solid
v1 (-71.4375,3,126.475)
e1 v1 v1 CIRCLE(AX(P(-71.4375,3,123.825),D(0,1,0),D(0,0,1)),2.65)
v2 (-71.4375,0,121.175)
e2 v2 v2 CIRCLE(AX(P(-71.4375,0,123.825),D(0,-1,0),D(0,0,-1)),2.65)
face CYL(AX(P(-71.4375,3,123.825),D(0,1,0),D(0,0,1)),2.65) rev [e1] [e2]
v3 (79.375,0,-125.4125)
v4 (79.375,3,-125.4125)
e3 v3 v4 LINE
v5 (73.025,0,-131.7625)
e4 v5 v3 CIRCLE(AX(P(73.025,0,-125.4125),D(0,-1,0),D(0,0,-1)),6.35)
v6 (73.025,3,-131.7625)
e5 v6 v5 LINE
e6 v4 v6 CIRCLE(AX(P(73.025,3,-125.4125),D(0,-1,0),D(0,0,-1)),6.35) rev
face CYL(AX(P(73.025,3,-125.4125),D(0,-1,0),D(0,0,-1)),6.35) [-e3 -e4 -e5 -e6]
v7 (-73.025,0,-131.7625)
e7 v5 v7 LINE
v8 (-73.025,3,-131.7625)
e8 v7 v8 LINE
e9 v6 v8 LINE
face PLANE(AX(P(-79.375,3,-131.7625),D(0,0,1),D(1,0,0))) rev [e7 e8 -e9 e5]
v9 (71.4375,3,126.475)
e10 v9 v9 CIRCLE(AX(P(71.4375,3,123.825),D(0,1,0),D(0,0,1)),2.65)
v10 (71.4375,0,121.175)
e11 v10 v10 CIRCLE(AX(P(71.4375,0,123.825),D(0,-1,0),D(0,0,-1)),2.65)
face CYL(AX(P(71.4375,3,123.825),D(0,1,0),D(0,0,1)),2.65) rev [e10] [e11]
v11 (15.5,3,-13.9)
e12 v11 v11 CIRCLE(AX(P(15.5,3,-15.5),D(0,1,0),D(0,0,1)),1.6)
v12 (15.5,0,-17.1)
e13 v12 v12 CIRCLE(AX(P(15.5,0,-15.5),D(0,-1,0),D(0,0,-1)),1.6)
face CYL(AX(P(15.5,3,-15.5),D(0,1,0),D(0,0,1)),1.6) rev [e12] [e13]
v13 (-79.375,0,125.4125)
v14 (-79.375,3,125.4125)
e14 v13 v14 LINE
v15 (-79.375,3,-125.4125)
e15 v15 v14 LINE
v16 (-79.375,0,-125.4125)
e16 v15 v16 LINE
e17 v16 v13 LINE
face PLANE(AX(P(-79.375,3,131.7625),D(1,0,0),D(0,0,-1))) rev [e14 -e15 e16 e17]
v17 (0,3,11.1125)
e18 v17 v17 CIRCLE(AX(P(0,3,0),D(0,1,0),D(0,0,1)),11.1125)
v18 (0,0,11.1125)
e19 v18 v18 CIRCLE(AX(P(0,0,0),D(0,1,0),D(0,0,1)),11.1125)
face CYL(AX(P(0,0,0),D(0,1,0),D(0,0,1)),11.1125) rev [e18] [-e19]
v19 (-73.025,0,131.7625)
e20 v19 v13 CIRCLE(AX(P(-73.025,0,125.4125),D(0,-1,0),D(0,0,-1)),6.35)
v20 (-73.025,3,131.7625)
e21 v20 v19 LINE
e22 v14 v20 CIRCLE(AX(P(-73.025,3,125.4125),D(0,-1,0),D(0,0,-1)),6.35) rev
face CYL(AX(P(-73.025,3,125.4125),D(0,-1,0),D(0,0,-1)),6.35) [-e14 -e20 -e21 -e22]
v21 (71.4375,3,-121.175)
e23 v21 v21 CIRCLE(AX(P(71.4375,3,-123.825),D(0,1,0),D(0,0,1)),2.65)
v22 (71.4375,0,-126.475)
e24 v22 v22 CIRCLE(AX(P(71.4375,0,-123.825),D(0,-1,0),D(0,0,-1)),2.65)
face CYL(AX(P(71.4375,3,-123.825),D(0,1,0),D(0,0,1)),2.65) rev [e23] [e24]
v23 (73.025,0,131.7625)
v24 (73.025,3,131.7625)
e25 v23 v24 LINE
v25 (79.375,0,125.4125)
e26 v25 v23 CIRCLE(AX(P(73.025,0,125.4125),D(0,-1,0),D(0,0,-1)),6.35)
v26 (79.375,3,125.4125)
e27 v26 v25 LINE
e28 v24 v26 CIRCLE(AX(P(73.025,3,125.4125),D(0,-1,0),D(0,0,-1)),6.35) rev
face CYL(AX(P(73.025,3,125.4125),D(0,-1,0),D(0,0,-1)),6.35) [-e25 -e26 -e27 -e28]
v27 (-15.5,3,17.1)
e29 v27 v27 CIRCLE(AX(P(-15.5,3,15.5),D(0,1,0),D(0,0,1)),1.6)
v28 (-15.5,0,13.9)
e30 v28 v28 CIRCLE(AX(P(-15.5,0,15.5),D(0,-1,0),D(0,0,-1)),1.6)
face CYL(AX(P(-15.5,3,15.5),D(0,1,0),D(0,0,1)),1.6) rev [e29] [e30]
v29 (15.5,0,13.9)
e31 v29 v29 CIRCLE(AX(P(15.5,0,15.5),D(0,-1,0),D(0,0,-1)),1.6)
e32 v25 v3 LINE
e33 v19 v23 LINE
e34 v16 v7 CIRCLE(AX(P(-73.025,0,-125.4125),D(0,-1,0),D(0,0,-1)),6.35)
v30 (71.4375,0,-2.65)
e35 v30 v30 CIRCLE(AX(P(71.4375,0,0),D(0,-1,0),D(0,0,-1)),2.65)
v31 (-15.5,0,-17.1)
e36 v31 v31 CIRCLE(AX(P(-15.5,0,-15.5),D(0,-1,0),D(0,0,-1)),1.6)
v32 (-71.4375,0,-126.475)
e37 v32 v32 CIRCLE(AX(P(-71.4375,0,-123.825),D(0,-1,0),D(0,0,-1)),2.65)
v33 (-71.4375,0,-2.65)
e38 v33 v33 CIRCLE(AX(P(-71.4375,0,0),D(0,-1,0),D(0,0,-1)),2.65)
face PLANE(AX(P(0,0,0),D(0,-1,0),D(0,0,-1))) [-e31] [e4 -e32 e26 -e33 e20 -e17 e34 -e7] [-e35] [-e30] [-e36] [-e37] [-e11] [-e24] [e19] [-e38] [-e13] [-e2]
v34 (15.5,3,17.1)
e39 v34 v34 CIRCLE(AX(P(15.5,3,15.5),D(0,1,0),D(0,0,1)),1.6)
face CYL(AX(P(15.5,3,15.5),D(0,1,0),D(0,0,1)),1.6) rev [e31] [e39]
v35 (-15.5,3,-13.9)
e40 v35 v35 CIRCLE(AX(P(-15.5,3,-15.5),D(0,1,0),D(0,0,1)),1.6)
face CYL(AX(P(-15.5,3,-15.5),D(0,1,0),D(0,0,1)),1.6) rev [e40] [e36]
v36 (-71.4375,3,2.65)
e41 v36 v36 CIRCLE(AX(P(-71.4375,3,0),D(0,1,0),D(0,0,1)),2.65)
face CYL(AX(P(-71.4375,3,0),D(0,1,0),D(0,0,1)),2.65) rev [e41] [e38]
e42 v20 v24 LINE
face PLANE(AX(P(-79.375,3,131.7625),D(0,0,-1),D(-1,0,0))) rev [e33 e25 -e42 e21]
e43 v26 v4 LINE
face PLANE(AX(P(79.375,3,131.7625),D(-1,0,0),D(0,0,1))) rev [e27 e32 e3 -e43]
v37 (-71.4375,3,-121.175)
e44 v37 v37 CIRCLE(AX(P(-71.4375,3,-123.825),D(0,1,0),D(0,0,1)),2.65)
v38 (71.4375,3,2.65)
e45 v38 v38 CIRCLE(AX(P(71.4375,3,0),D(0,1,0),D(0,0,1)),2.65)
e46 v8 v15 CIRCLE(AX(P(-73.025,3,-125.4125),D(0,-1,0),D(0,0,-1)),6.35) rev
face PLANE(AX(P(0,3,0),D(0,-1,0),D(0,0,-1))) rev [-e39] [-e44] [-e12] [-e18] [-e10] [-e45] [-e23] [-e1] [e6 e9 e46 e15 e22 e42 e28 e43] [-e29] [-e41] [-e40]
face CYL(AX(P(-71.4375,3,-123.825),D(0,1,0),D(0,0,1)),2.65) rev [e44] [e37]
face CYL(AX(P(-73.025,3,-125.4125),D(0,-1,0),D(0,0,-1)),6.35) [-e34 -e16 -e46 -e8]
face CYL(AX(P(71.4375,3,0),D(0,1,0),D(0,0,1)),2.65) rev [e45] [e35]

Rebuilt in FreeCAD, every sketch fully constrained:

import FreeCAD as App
import Part
import Sketcher
from FreeCAD import Vector
Q = App.Units.Quantity


def edges_at(feature, points):
    """Names of the edges that pass closest to the given points."""
    edges = feature.Shape.Edges
    near = lambda p: min(range(len(edges)), key=lambda i: edges[i].distToShape(Part.Vertex(*p))[0])
    return sorted({f"Edge{near(p) + 1}" for p in points})

doc = App.newDocument("Part")
body = doc.addObject("PartDesign::Body", "Body")

sketch1 = doc.addObject("Sketcher::SketchObject", "Sketch")
body.addObject(sketch1)
sketch1.AttachmentSupport = (doc.XZ_Plane, [""])
sketch1.MapMode = "FlatFace"
sketch1.addGeometry([
    Part.LineSegment(Vector(-79, -132, 0), Vector(-79, 132, 0)),
    Part.LineSegment(Vector(-79, 132, 0), Vector(79, 132, 0)),
    Part.LineSegment(Vector(79, 132, 0), Vector(79, -132, 0)),
    Part.LineSegment(Vector(79, -132, 0), Vector(-79, -132, 0)),
], False)
sketch1.addConstraint([
    Sketcher.Constraint("Coincident", 0, 2, 1, 1),
    Sketcher.Constraint("Coincident", 1, 2, 2, 1),
    Sketcher.Constraint("Coincident", 2, 2, 3, 1),
    Sketcher.Constraint("Coincident", 3, 2, 0, 1),
    Sketcher.Constraint("Vertical", 0),
    Sketcher.Constraint("Horizontal", 1),
    Sketcher.Constraint("Vertical", 2),
    Sketcher.Constraint("Horizontal", 3),
    Sketcher.Constraint("Symmetric", 0, 2, 2, 2, -1, 1),
    Sketcher.Constraint("DistanceX", 1, 1, 1, 2, Q("6.25 in")),
    Sketcher.Constraint("DistanceY", 0, 1, 0, 2, Q("10.375 in")),
])
pad1 = doc.addObject("PartDesign::Pad", "Pad")
body.addObject(pad1)
pad1.Profile = sketch1
pad1.Length = 3
pad1.Reversed = True

sketch2 = doc.addObject("Sketcher::SketchObject", "Sketch001")
body.addObject(sketch2)
sketch2.AttachmentSupport = (doc.XZ_Plane, [""])
sketch2.MapMode = "FlatFace"
sketch2.AttachmentOffset = App.Placement(Vector(0, 0, -3), App.Rotation())
sketch2.addGeometry(Part.Circle(Vector(0, 0, 0), Vector(0, 0, 1), 11), False)
sketch2.addConstraint([
    Sketcher.Constraint("Coincident", 0, 3, -1, 1),
    Sketcher.Constraint("Diameter", 0, Q("0.875 in")),
])
pocket1 = doc.addObject("PartDesign::Pocket", "Pocket")
body.addObject(pocket1)
pocket1.Profile = sketch2
pocket1.Type = "ThroughAll"
pocket1.Reversed = True

sketch3 = doc.addObject("Sketcher::SketchObject", "Sketch002")
body.addObject(sketch3)
sketch3.AttachmentSupport = (doc.XZ_Plane, [""])
sketch3.MapMode = "FlatFace"
sketch3.AttachmentOffset = App.Placement(Vector(0, 0, -3), App.Rotation())
sketch3.addGeometry([
    Part.Circle(Vector(0, 0, 0), Vector(0, 0, 1), 1.6),
    Part.Circle(Vector(15.5, -15.5, 0), Vector(0, 0, 1), 1.6),
    Part.Circle(Vector(-15.5, 15.5, 0), Vector(0, 0, 1), 1.6),
    Part.Circle(Vector(-15.5, -15.5, 0), Vector(0, 0, 1), 1.6),
    Part.Circle(Vector(15.5, 15.5, 0), Vector(0, 0, 1), 1.6),
], False)
sketch3.addConstraint([
    Sketcher.Constraint("Coincident", 0, 3, -1, 1),
    Sketcher.Constraint("Equal", 0, 1),
    Sketcher.Constraint("Equal", 1, 2),
    Sketcher.Constraint("Equal", 2, 3),
    Sketcher.Constraint("Equal", 3, 4),
    Sketcher.Constraint("Symmetric", 1, 3, 2, 3, -1, 1),
    Sketcher.Constraint("Symmetric", 3, 3, 4, 3, -1, 1),
    Sketcher.Constraint("Symmetric", 1, 3, 3, 3, -2),
    Sketcher.Constraint("Diameter", 0, Q("3.2 mm")),
    Sketcher.Constraint("DistanceX", -1, 1, 1, 3, Q("15.5 mm")),
    Sketcher.Constraint("DistanceY", 1, 3, -1, 1, Q("15.5 mm")),
])
doc.recompute()
hole = doc.addObject("PartDesign::Hole", "Hole")
body.addObject(hole)
hole.Profile = sketch3
hole.ThreadType = "None"
hole.Diameter = 3.2
hole.DepthType = "Dimension"
hole.Depth = 3
hole.DrillPoint = "Flat"
hole.Reversed = True

sketch4 = doc.addObject("Sketcher::SketchObject", "Sketch003")
body.addObject(sketch4)
sketch4.AttachmentSupport = (doc.XZ_Plane, [""])
sketch4.MapMode = "FlatFace"
sketch4.AttachmentOffset = App.Placement(Vector(0, 0, -3), App.Rotation())
sketch4.addGeometry([
    Part.Circle(Vector(0, 0, 0), Vector(0, 0, 1), 2.6),
    Part.Circle(Vector(71.4, -123.8, 0), Vector(0, 0, 1), 2.6),
    Part.Circle(Vector(-71.4, 123.8, 0), Vector(0, 0, 1), 2.6),
    Part.Circle(Vector(-71.4, -123.8, 0), Vector(0, 0, 1), 2.6),
    Part.Circle(Vector(71.4, 123.8, 0), Vector(0, 0, 1), 2.6),
    Part.Circle(Vector(-71.4, 0, 0), Vector(0, 0, 1), 2.6),
    Part.Circle(Vector(71.4, 0, 0), Vector(0, 0, 1), 2.6),
], False)
sketch4.addConstraint([
    Sketcher.Constraint("Coincident", 0, 3, -1, 1),
    Sketcher.Constraint("Equal", 0, 1),
    Sketcher.Constraint("Equal", 1, 2),
    Sketcher.Constraint("Equal", 2, 3),
    Sketcher.Constraint("Equal", 3, 4),
    Sketcher.Constraint("Equal", 4, 5),
    Sketcher.Constraint("Equal", 5, 6),
    Sketcher.Constraint("Symmetric", 1, 3, 2, 3, -1, 1),
    Sketcher.Constraint("Symmetric", 3, 3, 4, 3, -1, 1),
    Sketcher.Constraint("Symmetric", 5, 3, 6, 3, -1, 1),
    Sketcher.Constraint("Symmetric", 1, 3, 3, 3, -2),
    Sketcher.Constraint("PointOnObject", 5, 3, -1),
    Sketcher.Constraint("Vertical", 3, 3, 5, 3),
    Sketcher.Constraint("Diameter", 0, Q("5.3 mm")),
    Sketcher.Constraint("DistanceY", 1, 3, 2, 3, Q("9.75 in")),
    Sketcher.Constraint("DistanceX", -1, 1, 1, 3, Q("2.8125 in")),
])
doc.recompute()
hole2 = doc.addObject("PartDesign::Hole", "Hole001")
body.addObject(hole2)
hole2.Profile = sketch4
hole2.ThreadType = "None"
hole2.Diameter = 5.3
hole2.DepthType = "Dimension"
hole2.Depth = 3
hole2.DrillPoint = "Flat"
hole2.Reversed = True
doc.recompute()

fillet = doc.addObject("PartDesign::Fillet", "Fillet")
body.addObject(fillet)
fillet.Base = (hole2, edges_at(hole2, [
    (79.375, 1.5, 131.762),
    (-79.375, 1.5, 131.762),
    (-79.375, 1.5, -131.762),
    (79.375, 1.5, -131.762),
]))
fillet.Radius = Q("0.25 in")

doc.recompute()
